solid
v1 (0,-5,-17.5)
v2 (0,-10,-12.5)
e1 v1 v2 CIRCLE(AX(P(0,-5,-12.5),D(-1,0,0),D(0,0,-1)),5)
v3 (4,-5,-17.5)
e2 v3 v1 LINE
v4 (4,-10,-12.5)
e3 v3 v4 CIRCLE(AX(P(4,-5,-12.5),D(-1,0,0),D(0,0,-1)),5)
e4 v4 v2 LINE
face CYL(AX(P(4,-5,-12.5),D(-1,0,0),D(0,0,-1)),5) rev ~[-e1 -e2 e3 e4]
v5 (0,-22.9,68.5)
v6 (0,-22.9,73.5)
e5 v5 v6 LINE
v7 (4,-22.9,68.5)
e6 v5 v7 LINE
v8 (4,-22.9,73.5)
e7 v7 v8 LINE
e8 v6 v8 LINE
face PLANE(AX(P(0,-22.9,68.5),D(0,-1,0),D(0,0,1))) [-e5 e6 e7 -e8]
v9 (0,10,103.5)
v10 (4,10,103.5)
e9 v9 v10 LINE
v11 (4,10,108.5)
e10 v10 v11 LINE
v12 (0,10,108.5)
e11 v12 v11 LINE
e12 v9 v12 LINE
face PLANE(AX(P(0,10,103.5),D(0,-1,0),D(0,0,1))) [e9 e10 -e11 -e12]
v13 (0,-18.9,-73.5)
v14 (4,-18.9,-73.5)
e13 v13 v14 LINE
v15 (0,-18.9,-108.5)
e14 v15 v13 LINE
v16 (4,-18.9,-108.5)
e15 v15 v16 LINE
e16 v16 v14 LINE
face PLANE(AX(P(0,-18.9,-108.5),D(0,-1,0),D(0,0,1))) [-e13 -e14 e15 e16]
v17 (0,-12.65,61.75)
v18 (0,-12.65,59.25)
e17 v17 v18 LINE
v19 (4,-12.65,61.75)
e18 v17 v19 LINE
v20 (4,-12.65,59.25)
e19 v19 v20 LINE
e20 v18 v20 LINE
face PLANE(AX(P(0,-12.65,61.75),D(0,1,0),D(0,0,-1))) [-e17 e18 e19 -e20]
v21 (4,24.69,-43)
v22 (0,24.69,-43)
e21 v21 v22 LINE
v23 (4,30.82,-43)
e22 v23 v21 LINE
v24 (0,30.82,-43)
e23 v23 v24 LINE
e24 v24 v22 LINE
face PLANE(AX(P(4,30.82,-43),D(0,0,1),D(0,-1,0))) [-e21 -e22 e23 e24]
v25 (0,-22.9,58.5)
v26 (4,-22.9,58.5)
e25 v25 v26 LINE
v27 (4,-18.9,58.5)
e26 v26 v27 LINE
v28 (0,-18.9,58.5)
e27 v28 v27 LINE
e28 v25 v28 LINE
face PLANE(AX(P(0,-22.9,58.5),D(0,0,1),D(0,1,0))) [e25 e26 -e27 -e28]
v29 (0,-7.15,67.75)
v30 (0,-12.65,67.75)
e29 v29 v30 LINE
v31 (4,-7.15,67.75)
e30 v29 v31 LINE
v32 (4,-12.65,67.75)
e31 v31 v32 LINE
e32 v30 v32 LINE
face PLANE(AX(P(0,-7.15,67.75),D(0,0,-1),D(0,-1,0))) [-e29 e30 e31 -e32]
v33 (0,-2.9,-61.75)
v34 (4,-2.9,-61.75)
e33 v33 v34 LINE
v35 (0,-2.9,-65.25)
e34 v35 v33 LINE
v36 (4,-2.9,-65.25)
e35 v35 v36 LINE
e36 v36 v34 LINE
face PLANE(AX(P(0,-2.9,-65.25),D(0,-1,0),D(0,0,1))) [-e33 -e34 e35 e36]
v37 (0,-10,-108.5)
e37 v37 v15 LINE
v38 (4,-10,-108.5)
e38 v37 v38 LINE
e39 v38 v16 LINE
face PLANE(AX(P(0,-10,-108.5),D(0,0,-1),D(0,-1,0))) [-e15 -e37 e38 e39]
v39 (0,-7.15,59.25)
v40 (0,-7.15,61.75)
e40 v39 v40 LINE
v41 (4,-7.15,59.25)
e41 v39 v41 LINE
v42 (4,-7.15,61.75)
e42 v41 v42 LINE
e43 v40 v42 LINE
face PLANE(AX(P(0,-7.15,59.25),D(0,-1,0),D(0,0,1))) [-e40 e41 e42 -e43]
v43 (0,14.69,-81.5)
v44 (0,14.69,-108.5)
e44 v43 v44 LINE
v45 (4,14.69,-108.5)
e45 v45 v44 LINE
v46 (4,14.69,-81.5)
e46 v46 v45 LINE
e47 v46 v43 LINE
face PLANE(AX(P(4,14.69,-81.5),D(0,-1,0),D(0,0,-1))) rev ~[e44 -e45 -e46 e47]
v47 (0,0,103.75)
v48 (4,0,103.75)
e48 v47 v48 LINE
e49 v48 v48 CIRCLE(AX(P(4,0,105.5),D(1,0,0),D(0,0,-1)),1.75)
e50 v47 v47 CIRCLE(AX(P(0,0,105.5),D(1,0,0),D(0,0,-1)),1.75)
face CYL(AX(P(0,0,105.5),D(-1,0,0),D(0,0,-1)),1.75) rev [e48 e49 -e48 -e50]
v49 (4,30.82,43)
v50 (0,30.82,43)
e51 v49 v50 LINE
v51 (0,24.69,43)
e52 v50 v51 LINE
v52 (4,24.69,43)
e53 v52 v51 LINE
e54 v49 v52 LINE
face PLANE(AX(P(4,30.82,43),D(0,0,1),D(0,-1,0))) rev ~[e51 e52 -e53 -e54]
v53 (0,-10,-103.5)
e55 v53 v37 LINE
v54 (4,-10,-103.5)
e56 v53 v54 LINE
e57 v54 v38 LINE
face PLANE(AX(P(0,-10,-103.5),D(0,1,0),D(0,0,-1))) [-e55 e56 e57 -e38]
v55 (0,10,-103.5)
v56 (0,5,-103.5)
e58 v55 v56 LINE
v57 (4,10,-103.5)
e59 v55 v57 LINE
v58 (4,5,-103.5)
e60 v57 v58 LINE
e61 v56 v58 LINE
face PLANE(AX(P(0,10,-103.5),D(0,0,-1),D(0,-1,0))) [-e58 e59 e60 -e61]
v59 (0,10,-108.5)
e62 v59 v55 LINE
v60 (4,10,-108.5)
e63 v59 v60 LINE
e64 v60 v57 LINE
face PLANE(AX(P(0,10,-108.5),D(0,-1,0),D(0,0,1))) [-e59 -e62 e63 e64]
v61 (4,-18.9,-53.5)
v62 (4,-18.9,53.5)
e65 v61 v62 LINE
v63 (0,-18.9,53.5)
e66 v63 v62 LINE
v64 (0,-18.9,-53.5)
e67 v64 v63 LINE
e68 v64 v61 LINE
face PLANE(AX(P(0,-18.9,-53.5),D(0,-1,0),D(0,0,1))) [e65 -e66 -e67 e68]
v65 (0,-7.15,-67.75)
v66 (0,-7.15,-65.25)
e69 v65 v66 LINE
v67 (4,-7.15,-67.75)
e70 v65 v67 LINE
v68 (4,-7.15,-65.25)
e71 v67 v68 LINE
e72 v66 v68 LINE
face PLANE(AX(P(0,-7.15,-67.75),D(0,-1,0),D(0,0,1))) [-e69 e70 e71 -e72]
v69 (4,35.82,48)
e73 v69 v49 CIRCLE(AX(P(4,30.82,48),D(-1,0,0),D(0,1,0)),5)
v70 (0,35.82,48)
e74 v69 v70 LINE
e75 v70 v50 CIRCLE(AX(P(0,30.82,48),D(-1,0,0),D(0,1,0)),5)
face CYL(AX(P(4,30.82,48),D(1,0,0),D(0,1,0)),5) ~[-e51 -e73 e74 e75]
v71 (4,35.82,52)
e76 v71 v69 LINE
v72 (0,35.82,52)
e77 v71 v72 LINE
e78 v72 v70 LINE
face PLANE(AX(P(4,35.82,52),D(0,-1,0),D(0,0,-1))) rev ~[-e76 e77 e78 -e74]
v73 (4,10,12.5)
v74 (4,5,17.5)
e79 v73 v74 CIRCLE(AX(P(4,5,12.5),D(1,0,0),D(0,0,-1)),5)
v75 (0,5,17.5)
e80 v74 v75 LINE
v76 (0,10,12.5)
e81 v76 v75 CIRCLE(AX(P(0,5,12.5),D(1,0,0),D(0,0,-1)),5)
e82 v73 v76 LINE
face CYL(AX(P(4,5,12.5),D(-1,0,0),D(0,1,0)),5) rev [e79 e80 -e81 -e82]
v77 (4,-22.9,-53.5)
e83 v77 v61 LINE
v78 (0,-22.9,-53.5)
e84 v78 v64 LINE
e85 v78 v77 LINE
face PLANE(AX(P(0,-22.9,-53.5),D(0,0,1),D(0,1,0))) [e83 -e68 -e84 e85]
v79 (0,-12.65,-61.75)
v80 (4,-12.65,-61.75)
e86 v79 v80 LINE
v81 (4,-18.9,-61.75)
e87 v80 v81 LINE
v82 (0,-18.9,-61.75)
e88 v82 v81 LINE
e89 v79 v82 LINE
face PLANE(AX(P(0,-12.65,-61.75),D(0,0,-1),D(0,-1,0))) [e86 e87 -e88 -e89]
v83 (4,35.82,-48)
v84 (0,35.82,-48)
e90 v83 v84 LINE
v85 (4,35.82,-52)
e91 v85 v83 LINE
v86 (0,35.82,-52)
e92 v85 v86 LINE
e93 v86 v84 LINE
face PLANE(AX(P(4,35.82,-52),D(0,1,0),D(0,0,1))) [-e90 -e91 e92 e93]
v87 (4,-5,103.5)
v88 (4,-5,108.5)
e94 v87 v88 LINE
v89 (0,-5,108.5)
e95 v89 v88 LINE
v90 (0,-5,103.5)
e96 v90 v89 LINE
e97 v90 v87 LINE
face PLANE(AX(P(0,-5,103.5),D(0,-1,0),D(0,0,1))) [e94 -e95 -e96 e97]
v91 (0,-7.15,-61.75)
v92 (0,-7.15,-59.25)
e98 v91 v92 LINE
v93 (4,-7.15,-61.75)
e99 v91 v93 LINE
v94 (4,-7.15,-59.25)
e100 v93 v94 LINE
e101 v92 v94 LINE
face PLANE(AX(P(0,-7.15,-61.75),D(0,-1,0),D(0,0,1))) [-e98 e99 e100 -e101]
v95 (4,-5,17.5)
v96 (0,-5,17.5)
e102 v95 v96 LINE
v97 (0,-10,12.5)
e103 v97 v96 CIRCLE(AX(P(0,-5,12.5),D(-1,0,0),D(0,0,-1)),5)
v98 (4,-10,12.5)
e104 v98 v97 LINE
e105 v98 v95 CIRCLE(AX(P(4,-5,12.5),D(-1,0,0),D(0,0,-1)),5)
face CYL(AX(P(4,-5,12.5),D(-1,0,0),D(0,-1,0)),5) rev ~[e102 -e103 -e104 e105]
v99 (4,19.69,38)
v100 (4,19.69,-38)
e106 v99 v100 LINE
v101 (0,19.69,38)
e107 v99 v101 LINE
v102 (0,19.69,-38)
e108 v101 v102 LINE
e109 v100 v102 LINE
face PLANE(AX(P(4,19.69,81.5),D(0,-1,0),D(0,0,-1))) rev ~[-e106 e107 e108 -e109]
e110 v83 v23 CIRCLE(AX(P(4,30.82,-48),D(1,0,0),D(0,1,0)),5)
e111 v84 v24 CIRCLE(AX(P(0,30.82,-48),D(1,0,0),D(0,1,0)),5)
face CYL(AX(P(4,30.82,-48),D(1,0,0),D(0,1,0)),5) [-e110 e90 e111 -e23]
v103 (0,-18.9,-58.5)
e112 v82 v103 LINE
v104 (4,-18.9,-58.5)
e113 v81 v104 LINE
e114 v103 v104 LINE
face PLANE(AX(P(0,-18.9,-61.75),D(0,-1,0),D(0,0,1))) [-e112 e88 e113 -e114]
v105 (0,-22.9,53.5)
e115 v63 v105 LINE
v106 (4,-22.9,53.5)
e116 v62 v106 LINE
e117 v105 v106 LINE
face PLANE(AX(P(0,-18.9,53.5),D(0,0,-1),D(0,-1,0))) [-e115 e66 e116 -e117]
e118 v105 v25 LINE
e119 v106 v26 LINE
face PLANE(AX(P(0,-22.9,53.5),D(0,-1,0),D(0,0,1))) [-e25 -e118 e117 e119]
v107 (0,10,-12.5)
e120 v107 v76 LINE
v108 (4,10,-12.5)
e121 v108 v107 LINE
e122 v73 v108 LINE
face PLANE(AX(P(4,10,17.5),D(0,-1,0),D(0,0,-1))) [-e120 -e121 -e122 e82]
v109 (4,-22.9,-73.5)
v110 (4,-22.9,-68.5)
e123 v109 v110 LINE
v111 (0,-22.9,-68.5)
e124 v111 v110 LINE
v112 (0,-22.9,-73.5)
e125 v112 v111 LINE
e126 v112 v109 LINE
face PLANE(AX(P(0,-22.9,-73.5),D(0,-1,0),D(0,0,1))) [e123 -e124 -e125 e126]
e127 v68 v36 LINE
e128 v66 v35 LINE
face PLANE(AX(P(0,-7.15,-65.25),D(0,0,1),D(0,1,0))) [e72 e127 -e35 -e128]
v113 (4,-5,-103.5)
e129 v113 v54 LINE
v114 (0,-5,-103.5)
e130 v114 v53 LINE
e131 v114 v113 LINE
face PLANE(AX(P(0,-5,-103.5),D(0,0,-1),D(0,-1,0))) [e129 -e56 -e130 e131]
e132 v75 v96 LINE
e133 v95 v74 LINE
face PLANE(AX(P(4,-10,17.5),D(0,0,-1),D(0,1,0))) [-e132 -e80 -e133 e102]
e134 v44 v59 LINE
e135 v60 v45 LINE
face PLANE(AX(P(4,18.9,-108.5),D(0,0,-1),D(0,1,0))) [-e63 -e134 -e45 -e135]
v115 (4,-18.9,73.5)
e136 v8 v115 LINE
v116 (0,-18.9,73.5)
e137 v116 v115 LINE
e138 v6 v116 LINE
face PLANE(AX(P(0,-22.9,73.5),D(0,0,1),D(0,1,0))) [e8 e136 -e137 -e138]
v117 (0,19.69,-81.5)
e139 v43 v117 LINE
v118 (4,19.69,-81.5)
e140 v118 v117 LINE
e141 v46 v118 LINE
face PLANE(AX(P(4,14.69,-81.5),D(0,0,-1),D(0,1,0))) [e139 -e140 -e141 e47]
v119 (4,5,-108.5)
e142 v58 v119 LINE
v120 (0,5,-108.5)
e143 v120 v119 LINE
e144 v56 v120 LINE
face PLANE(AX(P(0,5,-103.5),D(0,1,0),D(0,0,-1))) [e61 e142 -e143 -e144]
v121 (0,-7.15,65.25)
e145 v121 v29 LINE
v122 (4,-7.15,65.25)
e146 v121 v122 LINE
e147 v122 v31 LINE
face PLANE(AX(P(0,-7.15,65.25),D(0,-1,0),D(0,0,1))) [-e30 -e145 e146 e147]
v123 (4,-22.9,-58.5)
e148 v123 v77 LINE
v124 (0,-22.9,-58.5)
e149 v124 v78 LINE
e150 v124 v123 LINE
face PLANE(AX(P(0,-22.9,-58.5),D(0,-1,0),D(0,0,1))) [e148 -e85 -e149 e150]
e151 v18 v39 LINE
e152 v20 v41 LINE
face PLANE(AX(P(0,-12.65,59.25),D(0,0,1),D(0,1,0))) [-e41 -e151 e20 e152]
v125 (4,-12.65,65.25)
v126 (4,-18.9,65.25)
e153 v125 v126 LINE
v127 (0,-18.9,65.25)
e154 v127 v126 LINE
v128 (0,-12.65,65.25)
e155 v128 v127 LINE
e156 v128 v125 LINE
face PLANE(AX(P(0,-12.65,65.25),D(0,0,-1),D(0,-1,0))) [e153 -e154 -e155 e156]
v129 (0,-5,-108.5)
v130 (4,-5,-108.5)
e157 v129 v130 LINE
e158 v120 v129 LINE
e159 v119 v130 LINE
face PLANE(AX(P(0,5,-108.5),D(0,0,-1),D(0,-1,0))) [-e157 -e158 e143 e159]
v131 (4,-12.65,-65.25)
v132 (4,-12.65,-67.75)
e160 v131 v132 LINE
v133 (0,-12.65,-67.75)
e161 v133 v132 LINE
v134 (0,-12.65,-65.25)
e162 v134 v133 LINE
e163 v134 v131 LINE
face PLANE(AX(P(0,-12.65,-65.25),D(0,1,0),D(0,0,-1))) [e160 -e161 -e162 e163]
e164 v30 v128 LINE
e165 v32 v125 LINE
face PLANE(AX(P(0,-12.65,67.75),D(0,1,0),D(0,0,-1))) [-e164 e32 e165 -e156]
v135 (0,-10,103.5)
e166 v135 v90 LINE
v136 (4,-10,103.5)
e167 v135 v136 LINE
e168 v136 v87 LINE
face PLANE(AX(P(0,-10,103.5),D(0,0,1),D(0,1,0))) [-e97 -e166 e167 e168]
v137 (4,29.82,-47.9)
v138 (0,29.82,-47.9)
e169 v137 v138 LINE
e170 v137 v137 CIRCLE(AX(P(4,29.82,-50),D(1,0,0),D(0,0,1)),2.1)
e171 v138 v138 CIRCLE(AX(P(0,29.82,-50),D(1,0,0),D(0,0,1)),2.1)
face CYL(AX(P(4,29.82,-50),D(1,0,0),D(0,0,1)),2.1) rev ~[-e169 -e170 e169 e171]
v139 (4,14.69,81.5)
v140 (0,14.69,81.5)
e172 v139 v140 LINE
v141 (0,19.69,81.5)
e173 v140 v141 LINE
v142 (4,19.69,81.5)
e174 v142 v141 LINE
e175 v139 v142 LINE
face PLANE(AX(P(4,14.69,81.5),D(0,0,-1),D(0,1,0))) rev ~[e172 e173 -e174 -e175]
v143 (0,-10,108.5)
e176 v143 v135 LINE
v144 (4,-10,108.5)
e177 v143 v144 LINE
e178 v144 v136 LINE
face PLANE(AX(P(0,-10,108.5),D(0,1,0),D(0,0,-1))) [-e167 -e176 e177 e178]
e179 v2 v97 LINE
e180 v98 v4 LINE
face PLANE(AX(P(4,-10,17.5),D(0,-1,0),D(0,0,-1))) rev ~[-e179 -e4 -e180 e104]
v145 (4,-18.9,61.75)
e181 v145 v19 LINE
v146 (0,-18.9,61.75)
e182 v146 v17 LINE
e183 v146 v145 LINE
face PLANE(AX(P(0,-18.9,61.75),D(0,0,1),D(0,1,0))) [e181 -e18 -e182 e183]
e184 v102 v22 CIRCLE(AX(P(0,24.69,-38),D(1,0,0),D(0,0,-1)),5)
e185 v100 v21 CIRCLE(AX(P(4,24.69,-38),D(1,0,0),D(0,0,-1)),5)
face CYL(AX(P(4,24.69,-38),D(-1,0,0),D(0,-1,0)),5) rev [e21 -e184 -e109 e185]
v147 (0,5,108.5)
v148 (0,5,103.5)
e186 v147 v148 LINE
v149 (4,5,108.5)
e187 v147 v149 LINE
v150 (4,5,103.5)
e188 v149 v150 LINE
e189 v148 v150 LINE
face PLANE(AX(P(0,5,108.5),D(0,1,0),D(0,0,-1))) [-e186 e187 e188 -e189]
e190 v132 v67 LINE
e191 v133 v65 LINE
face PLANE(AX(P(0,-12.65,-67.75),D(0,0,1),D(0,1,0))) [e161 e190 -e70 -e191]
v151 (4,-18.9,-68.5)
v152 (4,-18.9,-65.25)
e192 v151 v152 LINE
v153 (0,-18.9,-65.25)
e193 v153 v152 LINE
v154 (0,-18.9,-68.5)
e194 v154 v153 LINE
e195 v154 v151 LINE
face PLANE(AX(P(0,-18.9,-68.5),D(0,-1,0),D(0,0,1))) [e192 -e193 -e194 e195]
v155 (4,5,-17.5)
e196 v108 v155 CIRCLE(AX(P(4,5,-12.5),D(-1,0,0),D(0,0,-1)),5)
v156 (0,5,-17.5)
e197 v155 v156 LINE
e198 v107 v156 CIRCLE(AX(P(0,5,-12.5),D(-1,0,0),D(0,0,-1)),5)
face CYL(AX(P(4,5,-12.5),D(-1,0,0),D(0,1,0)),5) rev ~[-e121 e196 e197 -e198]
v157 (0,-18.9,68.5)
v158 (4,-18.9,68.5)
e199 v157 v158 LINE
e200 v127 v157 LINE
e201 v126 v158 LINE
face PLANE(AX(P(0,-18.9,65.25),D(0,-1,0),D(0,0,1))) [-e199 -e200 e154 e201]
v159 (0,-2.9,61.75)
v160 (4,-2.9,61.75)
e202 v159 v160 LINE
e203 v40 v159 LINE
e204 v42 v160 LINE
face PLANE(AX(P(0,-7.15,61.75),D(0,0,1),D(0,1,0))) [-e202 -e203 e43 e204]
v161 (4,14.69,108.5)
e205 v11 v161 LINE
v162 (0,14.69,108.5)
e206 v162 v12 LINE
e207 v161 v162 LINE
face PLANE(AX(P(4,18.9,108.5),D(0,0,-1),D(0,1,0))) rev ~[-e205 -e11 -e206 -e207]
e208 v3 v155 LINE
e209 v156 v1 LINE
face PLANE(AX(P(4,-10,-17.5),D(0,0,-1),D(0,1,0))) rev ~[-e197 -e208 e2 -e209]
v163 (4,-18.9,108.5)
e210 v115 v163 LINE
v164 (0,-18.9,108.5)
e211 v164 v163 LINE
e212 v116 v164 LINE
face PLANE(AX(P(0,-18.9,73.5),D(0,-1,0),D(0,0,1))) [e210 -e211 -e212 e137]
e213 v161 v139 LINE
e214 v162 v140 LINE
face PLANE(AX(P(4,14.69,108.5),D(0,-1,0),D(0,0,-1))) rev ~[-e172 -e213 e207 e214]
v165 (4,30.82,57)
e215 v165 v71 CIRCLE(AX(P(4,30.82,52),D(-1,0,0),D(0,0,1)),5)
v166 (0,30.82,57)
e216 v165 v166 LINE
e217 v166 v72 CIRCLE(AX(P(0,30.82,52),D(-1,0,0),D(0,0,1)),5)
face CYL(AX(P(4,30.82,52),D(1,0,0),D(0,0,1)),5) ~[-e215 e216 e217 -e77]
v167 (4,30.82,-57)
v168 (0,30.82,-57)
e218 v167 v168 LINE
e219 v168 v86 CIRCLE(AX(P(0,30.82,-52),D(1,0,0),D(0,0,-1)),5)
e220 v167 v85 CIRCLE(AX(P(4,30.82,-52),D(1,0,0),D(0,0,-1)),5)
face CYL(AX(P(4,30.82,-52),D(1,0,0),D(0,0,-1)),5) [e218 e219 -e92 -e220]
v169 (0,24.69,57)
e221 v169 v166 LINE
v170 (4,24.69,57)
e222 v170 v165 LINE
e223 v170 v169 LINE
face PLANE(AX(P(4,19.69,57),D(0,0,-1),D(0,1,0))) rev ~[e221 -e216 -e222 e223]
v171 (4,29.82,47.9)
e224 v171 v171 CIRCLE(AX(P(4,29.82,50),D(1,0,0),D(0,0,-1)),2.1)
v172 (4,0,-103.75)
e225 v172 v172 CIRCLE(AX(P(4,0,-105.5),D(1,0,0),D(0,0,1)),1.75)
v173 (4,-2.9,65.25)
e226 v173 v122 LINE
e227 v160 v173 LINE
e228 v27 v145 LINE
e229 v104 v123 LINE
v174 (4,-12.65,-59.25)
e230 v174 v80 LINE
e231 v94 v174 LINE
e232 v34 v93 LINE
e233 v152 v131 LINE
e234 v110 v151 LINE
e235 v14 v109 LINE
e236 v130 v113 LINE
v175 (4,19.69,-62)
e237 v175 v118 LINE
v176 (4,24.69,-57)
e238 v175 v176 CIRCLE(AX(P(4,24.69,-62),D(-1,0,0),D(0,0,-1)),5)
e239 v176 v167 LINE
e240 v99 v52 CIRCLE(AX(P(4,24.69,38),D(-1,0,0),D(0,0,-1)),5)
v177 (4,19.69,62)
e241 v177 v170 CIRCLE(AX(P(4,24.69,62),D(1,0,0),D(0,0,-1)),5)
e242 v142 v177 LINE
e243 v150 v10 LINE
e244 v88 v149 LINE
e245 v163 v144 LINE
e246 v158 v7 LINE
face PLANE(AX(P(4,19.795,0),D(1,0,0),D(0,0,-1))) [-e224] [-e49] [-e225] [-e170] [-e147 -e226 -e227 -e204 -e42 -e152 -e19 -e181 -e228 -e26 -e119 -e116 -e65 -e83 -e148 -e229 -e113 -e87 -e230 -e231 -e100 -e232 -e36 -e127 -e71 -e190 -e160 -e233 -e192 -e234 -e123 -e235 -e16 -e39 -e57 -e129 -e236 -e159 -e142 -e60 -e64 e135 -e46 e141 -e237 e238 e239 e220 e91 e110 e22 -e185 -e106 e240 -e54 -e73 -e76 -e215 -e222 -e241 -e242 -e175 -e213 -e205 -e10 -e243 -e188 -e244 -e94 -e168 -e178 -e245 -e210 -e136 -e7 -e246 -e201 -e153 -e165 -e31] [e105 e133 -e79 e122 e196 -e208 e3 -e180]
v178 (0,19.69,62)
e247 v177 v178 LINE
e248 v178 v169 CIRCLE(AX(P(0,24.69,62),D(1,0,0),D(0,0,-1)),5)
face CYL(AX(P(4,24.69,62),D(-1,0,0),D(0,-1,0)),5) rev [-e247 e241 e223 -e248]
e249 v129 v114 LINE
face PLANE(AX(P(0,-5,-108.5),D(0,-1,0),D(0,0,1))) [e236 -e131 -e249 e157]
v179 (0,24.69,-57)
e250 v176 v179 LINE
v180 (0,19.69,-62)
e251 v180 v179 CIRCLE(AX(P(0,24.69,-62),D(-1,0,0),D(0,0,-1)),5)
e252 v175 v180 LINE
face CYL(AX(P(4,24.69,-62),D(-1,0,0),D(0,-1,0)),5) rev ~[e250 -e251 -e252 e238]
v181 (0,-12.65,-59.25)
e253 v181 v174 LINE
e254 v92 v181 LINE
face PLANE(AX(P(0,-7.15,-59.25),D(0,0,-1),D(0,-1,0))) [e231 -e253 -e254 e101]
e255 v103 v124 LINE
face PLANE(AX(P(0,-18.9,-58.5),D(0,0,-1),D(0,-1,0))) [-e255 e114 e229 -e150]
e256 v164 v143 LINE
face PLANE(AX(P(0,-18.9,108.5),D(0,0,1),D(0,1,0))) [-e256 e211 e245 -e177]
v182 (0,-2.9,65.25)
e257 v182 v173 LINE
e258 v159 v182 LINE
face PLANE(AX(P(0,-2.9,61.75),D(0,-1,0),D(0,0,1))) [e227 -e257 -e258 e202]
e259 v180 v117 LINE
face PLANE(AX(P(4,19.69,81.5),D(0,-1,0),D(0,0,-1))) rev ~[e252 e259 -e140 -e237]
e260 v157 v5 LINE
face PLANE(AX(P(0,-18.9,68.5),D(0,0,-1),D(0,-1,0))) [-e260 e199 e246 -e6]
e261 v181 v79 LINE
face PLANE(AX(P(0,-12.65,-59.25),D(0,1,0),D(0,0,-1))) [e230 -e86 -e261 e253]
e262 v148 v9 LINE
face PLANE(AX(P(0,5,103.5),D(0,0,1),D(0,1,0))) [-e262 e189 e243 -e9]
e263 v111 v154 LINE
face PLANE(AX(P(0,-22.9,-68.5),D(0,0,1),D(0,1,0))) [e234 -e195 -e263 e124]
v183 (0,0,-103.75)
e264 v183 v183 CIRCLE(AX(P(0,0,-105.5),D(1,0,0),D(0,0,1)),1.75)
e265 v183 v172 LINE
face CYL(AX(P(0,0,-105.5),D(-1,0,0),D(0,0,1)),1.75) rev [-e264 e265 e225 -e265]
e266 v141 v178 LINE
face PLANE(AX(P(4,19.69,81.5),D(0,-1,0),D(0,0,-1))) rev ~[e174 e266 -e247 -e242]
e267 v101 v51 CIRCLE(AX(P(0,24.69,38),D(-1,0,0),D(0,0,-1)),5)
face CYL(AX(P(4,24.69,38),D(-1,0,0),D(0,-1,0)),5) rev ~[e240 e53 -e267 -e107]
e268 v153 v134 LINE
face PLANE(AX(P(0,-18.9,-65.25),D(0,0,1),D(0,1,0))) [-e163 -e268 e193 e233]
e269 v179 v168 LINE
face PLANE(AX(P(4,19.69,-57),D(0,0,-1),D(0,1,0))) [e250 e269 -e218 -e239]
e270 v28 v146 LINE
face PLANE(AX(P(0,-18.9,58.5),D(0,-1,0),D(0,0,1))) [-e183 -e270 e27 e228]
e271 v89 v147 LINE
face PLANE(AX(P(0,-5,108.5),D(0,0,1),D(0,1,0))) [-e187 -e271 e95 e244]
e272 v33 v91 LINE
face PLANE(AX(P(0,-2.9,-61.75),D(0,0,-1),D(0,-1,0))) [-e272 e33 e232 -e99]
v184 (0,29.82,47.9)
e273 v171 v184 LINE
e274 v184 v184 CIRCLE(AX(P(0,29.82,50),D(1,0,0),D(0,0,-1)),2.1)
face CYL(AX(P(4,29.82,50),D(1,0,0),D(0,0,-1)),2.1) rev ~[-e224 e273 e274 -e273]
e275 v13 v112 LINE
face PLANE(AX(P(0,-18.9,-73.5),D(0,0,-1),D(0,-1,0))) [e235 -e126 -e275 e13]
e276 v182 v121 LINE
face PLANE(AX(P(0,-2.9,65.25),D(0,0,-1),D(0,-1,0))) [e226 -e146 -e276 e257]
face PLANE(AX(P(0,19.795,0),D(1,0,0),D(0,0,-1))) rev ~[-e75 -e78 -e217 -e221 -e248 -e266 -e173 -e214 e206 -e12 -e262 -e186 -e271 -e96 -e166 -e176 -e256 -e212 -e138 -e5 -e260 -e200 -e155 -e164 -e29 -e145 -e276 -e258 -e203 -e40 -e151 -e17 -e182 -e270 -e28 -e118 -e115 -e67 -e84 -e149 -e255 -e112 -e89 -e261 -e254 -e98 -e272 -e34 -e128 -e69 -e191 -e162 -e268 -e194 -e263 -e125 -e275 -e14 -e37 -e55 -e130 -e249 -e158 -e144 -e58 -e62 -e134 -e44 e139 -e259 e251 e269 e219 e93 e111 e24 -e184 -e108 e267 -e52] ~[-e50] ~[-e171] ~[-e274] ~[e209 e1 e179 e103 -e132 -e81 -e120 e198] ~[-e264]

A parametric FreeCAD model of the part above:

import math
import FreeCAD as App
import Part
import Sketcher
from FreeCAD import Vector


def edges_at(feature, points):
    """Names of the edges that pass closest to the given points."""
    edges = feature.Shape.Edges
    near = lambda p: min(range(len(edges)), key=lambda i: edges[i].distToShape(Part.Vertex(*p))[0])
    return sorted({f"Edge{near(p) + 1}" for p in points})

doc = App.newDocument("Part")
body = doc.addObject("PartDesign::Body", "Body")

# Sketch on YZ plane
sketch1 = body.newObject("Sketcher::SketchObject", "Sketch")
sketch1.AttachmentSupport = (doc.getObject("YZ_Plane"), [""])
sketch1.MapMode = "FlatFace"
sketch1.addGeometry([
    Part.LineSegment(Vector(18.9, -108.5, 0), Vector(18.9, 108.5, 0)),  # 0
    Part.LineSegment(Vector(18.9, 108.5, 0), Vector(10, 108.5, 0)),  # 1
    Part.LineSegment(Vector(10, 108.5, 0), Vector(10, 103.5, 0)),  # 2
    Part.LineSegment(Vector(10, 103.5, 0), Vector(5, 103.5, 0)),  # 3
    Part.LineSegment(Vector(5, 103.5, 0), Vector(5, 108.5, 0)),  # 4
    Part.LineSegment(Vector(5, 108.5, 0), Vector(-5, 108.5, 0)),  # 5
    Part.LineSegment(Vector(-5, 108.5, 0), Vector(-5, 103.5, 0)),  # 6
    Part.LineSegment(Vector(-5, 103.5, 0), Vector(-10, 103.5, 0)),  # 7
    Part.LineSegment(Vector(-10, 103.5, 0), Vector(-10, 108.5, 0)),  # 8
    Part.LineSegment(Vector(-10, 108.5, 0), Vector(-18.9, 108.5, 0)),  # 9
    Part.LineSegment(Vector(-18.9, 108.5, 0), Vector(-18.9, 73.5, 0)),  # 10
    Part.LineSegment(Vector(-18.9, 73.5, 0), Vector(-22.9, 73.5, 0)),  # 11
    Part.LineSegment(Vector(-22.9, 73.5, 0), Vector(-22.9, 68.5, 0)),  # 12
    Part.LineSegment(Vector(-22.9, 68.5, 0), Vector(-18.9, 68.5, 0)),  # 13
    Part.LineSegment(Vector(-18.9, 68.5, 0), Vector(-18.9, 65.2, 0)),  # 14
    Part.LineSegment(Vector(-18.9, 65.2, 0), Vector(-12.7, 65.2, 0)),  # 15
    Part.LineSegment(Vector(-12.7, 65.2, 0), Vector(-12.7, 67.8, 0)),  # 16
    Part.LineSegment(Vector(-12.7, 67.8, 0), Vector(-7.2, 67.8, 0)),  # 17
    Part.LineSegment(Vector(-7.2, 67.8, 0), Vector(-7.2, 65.2, 0)),  # 18
    Part.LineSegment(Vector(-7.2, 65.2, 0), Vector(-2.9, 65.2, 0)),  # 19
    Part.LineSegment(Vector(-2.9, 65.2, 0), Vector(-2.9, 61.8, 0)),  # 20
    Part.LineSegment(Vector(-2.9, 61.8, 0), Vector(-7.2, 61.8, 0)),  # 21
    Part.LineSegment(Vector(-7.2, 61.8, 0), Vector(-7.2, 59.2, 0)),  # 22
    Part.LineSegment(Vector(-7.2, 59.2, 0), Vector(-12.7, 59.2, 0)),  # 23
    Part.LineSegment(Vector(-12.7, 59.2, 0), Vector(-12.7, 61.8, 0)),  # 24
    Part.LineSegment(Vector(-12.7, 61.8, 0), Vector(-18.9, 61.8, 0)),  # 25
    Part.LineSegment(Vector(-18.9, 61.8, 0), Vector(-18.9, 58.5, 0)),  # 26
    Part.LineSegment(Vector(-18.9, 58.5, 0), Vector(-22.9, 58.5, 0)),  # 27
    Part.LineSegment(Vector(-22.9, 58.5, 0), Vector(-22.9, 53.5, 0)),  # 28
    Part.LineSegment(Vector(-22.9, 53.5, 0), Vector(-18.9, 53.5, 0)),  # 29
    Part.LineSegment(Vector(-18.9, 53.5, 0), Vector(-18.9, -53.5, 0)),  # 30
    Part.LineSegment(Vector(-18.9, -53.5, 0), Vector(-22.9, -53.5, 0)),  # 31
    Part.LineSegment(Vector(-22.9, -53.5, 0), Vector(-22.9, -58.5, 0)),  # 32
    Part.LineSegment(Vector(-22.9, -58.5, 0), Vector(-18.9, -58.5, 0)),  # 33
    Part.LineSegment(Vector(-18.9, -58.5, 0), Vector(-18.9, -61.8, 0)),  # 34
    Part.LineSegment(Vector(-18.9, -61.8, 0), Vector(-12.7, -61.8, 0)),  # 35
    Part.LineSegment(Vector(-12.7, -61.8, 0), Vector(-12.7, -59.2, 0)),  # 36
    Part.LineSegment(Vector(-12.7, -59.2, 0), Vector(-7.2, -59.2, 0)),  # 37
    Part.LineSegment(Vector(-7.2, -59.2, 0), Vector(-7.2, -61.8, 0)),  # 38
    Part.LineSegment(Vector(-7.2, -61.8, 0), Vector(-2.9, -61.8, 0)),  # 39
    Part.LineSegment(Vector(-2.9, -61.8, 0), Vector(-2.9, -65.2, 0)),  # 40
    Part.LineSegment(Vector(-2.9, -65.2, 0), Vector(-7.2, -65.2, 0)),  # 41
    Part.LineSegment(Vector(-7.2, -65.2, 0), Vector(-7.2, -67.8, 0)),  # 42
    Part.LineSegment(Vector(-7.2, -67.8, 0), Vector(-12.7, -67.8, 0)),  # 43
    Part.LineSegment(Vector(-12.7, -67.8, 0), Vector(-12.7, -65.2, 0)),  # 44
    Part.LineSegment(Vector(-12.7, -65.2, 0), Vector(-18.9, -65.2, 0)),  # 45
    Part.LineSegment(Vector(-18.9, -65.2, 0), Vector(-18.9, -68.5, 0)),  # 46
    Part.LineSegment(Vector(-18.9, -68.5, 0), Vector(-22.9, -68.5, 0)),  # 47
    Part.LineSegment(Vector(-22.9, -68.5, 0), Vector(-22.9, -73.5, 0)),  # 48
    Part.LineSegment(Vector(-22.9, -73.5, 0), Vector(-18.9, -73.5, 0)),  # 49
    Part.LineSegment(Vector(-18.9, -73.5, 0), Vector(-18.9, -108.5, 0)),  # 50
    Part.LineSegment(Vector(-18.9, -108.5, 0), Vector(-10, -108.5, 0)),  # 51
    Part.LineSegment(Vector(-10, -108.5, 0), Vector(-10, -103.5, 0)),  # 52
    Part.LineSegment(Vector(-10, -103.5, 0), Vector(-5, -103.5, 0)),  # 53
    Part.LineSegment(Vector(-5, -103.5, 0), Vector(-5, -108.5, 0)),  # 54
    Part.LineSegment(Vector(-5, -108.5, 0), Vector(5, -108.5, 0)),  # 55
    Part.LineSegment(Vector(5, -108.5, 0), Vector(5, -103.5, 0)),  # 56
    Part.LineSegment(Vector(5, -103.5, 0), Vector(10, -103.5, 0)),  # 57
    Part.LineSegment(Vector(10, -103.5, 0), Vector(10, -108.5, 0)),  # 58
    Part.LineSegment(Vector(10, -108.5, 0), Vector(18.9, -108.5, 0)),  # 59
    Part.Circle(Vector(0, -105.5, 0), Vector(0, 0, 1), 1.8),  # 60
    Part.Circle(Vector(0, 105.5, 0), Vector(0, 0, 1), 1.8),  # 61
], False)
sketch1.addConstraint([
    Sketcher.Constraint("Coincident", 0, 2, 1, 1),
    Sketcher.Constraint("Coincident", 1, 2, 2, 1),
    Sketcher.Constraint("Coincident", 2, 2, 3, 1),
    Sketcher.Constraint("Coincident", 3, 2, 4, 1),
    Sketcher.Constraint("Coincident", 4, 2, 5, 1),
    Sketcher.Constraint("Coincident", 5, 2, 6, 1),
    Sketcher.Constraint("Coincident", 6, 2, 7, 1),
    Sketcher.Constraint("Coincident", 7, 2, 8, 1),
    Sketcher.Constraint("Coincident", 8, 2, 9, 1),
    Sketcher.Constraint("Coincident", 9, 2, 10, 1),
    Sketcher.Constraint("Coincident", 10, 2, 11, 1),
    Sketcher.Constraint("Coincident", 11, 2, 12, 1),
    Sketcher.Constraint("Coincident", 12, 2, 13, 1),
    Sketcher.Constraint("Coincident", 13, 2, 14, 1),
    Sketcher.Constraint("Coincident", 14, 2, 15, 1),
    Sketcher.Constraint("Coincident", 15, 2, 16, 1),
    Sketcher.Constraint("Coincident", 16, 2, 17, 1),
    Sketcher.Constraint("Coincident", 17, 2, 18, 1),
    Sketcher.Constraint("Coincident", 18, 2, 19, 1),
    Sketcher.Constraint("Coincident", 19, 2, 20, 1),
    Sketcher.Constraint("Coincident", 20, 2, 21, 1),
    Sketcher.Constraint("Coincident", 21, 2, 22, 1),
    Sketcher.Constraint("Coincident", 22, 2, 23, 1),
    Sketcher.Constraint("Coincident", 23, 2, 24, 1),
    Sketcher.Constraint("Coincident", 24, 2, 25, 1),
    Sketcher.Constraint("Coincident", 25, 2, 26, 1),
    Sketcher.Constraint("Coincident", 26, 2, 27, 1),
    Sketcher.Constraint("Coincident", 27, 2, 28, 1),
    Sketcher.Constraint("Coincident", 28, 2, 29, 1),
    Sketcher.Constraint("Coincident", 29, 2, 30, 1),
    Sketcher.Constraint("Coincident", 30, 2, 31, 1),
    Sketcher.Constraint("Coincident", 31, 2, 32, 1),
    Sketcher.Constraint("Coincident", 32, 2, 33, 1),
    Sketcher.Constraint("Coincident", 33, 2, 34, 1),
    Sketcher.Constraint("Coincident", 34, 2, 35, 1),
    Sketcher.Constraint("Coincident", 35, 2, 36, 1),
    Sketcher.Constraint("Coincident", 36, 2, 37, 1),
    Sketcher.Constraint("Coincident", 37, 2, 38, 1),
    Sketcher.Constraint("Coincident", 38, 2, 39, 1),
    Sketcher.Constraint("Coincident", 39, 2, 40, 1),
    Sketcher.Constraint("Coincident", 40, 2, 41, 1),
    Sketcher.Constraint("Coincident", 41, 2, 42, 1),
    Sketcher.Constraint("Coincident", 42, 2, 43, 1),
    Sketcher.Constraint("Coincident", 43, 2, 44, 1),
    Sketcher.Constraint("Coincident", 44, 2, 45, 1),
    Sketcher.Constraint("Coincident", 45, 2, 46, 1),
    Sketcher.Constraint("Coincident", 46, 2, 47, 1),
    Sketcher.Constraint("Coincident", 47, 2, 48, 1),
    Sketcher.Constraint("Coincident", 48, 2, 49, 1),
    Sketcher.Constraint("Coincident", 49, 2, 50, 1),
    Sketcher.Constraint("Coincident", 50, 2, 51, 1),
    Sketcher.Constraint("Coincident", 51, 2, 52, 1),
    Sketcher.Constraint("Coincident", 52, 2, 53, 1),
    Sketcher.Constraint("Coincident", 53, 2, 54, 1),
    Sketcher.Constraint("Coincident", 54, 2, 55, 1),
    Sketcher.Constraint("Coincident", 55, 2, 56, 1),
    Sketcher.Constraint("Coincident", 56, 2, 57, 1),
    Sketcher.Constraint("Coincident", 57, 2, 58, 1),
    Sketcher.Constraint("Coincident", 58, 2, 59, 1),
    Sketcher.Constraint("Coincident", 59, 2, 0, 1),
    Sketcher.Constraint("Vertical", 0),
    Sketcher.Constraint("Horizontal", 1),
    Sketcher.Constraint("Vertical", 2),
    Sketcher.Constraint("Horizontal", 3),
    Sketcher.Constraint("Vertical", 4),
    Sketcher.Constraint("Horizontal", 5),
    Sketcher.Constraint("Vertical", 6),
    Sketcher.Constraint("Horizontal", 7),
    Sketcher.Constraint("Vertical", 8),
    Sketcher.Constraint("Horizontal", 9),
    Sketcher.Constraint("Vertical", 10),
    Sketcher.Constraint("Horizontal", 11),
    Sketcher.Constraint("Vertical", 12),
    Sketcher.Constraint("Horizontal", 13),
    Sketcher.Constraint("Vertical", 14),
    Sketcher.Constraint("Horizontal", 15),
    Sketcher.Constraint("Vertical", 16),
    Sketcher.Constraint("Horizontal", 17),
    Sketcher.Constraint("Vertical", 18),
    Sketcher.Constraint("Horizontal", 19),
    Sketcher.Constraint("Vertical", 20),
    Sketcher.Constraint("Horizontal", 21),
    Sketcher.Constraint("Vertical", 22),
    Sketcher.Constraint("Horizontal", 23),
    Sketcher.Constraint("Vertical", 24),
    Sketcher.Constraint("Horizontal", 25),
    Sketcher.Constraint("Vertical", 26),
    Sketcher.Constraint("Horizontal", 27),
    Sketcher.Constraint("Vertical", 28),
    Sketcher.Constraint("Horizontal", 29),
    Sketcher.Constraint("Vertical", 30),
    Sketcher.Constraint("Horizontal", 31),
    Sketcher.Constraint("Vertical", 32),
    Sketcher.Constraint("Horizontal", 33),
    Sketcher.Constraint("Vertical", 34),
    Sketcher.Constraint("Horizontal", 35),
    Sketcher.Constraint("Vertical", 36),
    Sketcher.Constraint("Horizontal", 37),
    Sketcher.Constraint("Vertical", 38),
    Sketcher.Constraint("Horizontal", 39),
    Sketcher.Constraint("Vertical", 40),
    Sketcher.Constraint("Horizontal", 41),
    Sketcher.Constraint("Vertical", 42),
    Sketcher.Constraint("Horizontal", 43),
    Sketcher.Constraint("Vertical", 44),
    Sketcher.Constraint("Horizontal", 45),
    Sketcher.Constraint("Vertical", 46),
    Sketcher.Constraint("Horizontal", 47),
    Sketcher.Constraint("Vertical", 48),
    Sketcher.Constraint("Horizontal", 49),
    Sketcher.Constraint("Vertical", 50),
    Sketcher.Constraint("Horizontal", 51),
    Sketcher.Constraint("Vertical", 52),
    Sketcher.Constraint("Horizontal", 53),
    Sketcher.Constraint("Vertical", 54),
    Sketcher.Constraint("Horizontal", 55),
    Sketcher.Constraint("Vertical", 56),
    Sketcher.Constraint("Horizontal", 57),
    Sketcher.Constraint("Vertical", 58),
    Sketcher.Constraint("Horizontal", 59),
    Sketcher.Constraint("Equal", 60, 61),
    Sketcher.Constraint("Symmetric", 60, 3, 61, 3, -1, 1),
    Sketcher.Constraint("Symmetric", 0, 2, 50, 2, -1, 1),
    Sketcher.Constraint("Symmetric", 2, 2, 52, 2, -1, 1),
    Sketcher.Constraint("Symmetric", 4, 2, 54, 2, -1, 1),
    Sketcher.Constraint("Symmetric", 6, 2, 56, 2, -1, 1),
    Sketcher.Constraint("Symmetric", 8, 2, 58, 2, -1, 1),
    Sketcher.Constraint("Symmetric", 3, 2, 6, 2, -2),
    Sketcher.Constraint("Symmetric", 1, 2, 8, 2, -2),
    Sketcher.Constraint("Symmetric", 28, 2, 31, 2, -1),
    Sketcher.Constraint("Symmetric", 26, 2, 33, 2, -1),
    Sketcher.Constraint("Symmetric", 24, 2, 35, 2, -1),
    Sketcher.Constraint("Symmetric", 22, 2, 37, 2, -1),
    Sketcher.Constraint("Symmetric", 20, 2, 39, 2, -1),
    Sketcher.Constraint("Symmetric", 18, 2, 41, 2, -1),
    Sketcher.Constraint("Symmetric", 16, 2, 43, 2, -1),
    Sketcher.Constraint("Symmetric", 14, 2, 45, 2, -1),
    Sketcher.Constraint("Symmetric", 12, 2, 47, 2, -1),
    Sketcher.Constraint("Symmetric", 10, 2, 49, 2, -1),
    Sketcher.Constraint("PointOnObject", 60, 3, -2),
    Sketcher.Constraint("Horizontal", 1, 2, 4, 2),
    Sketcher.Constraint("Horizontal", 15, 2, 18, 2),
    Sketcher.Constraint("Horizontal", 21, 2, 24, 2),
    Sketcher.Constraint("Vertical", 10, 2, 13, 2),
    Sketcher.Constraint("Vertical", 18, 2, 21, 2),
    Sketcher.Constraint("Vertical", 16, 2, 23, 2),
    Sketcher.Constraint("Vertical", 14, 2, 25, 2),
    Sketcher.Constraint("Vertical", 12, 2, 27, 2),
    Sketcher.Constraint("Vertical", 26, 2, 29, 2),
    Sketcher.Constraint("Equal", 57, 2),
    Sketcher.Constraint("Equal", 8, 12),
    Sketcher.Constraint("Equal", 18, 22),
    Sketcher.Constraint("Equal", 14, 26),
    Sketcher.Constraint("Equal", 12, 28),
    Sketcher.Constraint("Diameter", 60, 3.5),
    Sketcher.Constraint("DistanceX", 3, 2, 3, 1, 5.0),
    Sketcher.Constraint("DistanceX", 5, 2, 5, 1, 10.0),
    Sketcher.Constraint("DistanceX", 11, 2, 11, 1, 4.0),
    Sketcher.Constraint("DistanceY", 0, 1, 0, 2, 217.0),
    Sketcher.Constraint("DistanceY", 10, 2, 10, 1, 35.0),
    Sketcher.Constraint("DistanceY", 30, 2, 30, 1, 107.0),
    Sketcher.Constraint("DistanceX", 1, 2, 1, 1, 8.9),
    Sketcher.Constraint("DistanceX", 17, 1, 17, 2, 5.5),
    Sketcher.Constraint("DistanceY", 16, 1, 16, 2, 2.5),
    Sketcher.Constraint("DistanceY", 20, 2, 20, 1, 3.5),
    Sketcher.Constraint("DistanceX", 15, 1, 15, 2, 6.25),
    Sketcher.Constraint("DistanceX", 19, 1, 19, 2, 4.25),
    Sketcher.Constraint("DistanceY", 60, 3, -1, 1, 105.5),
])
pad1 = body.newObject("PartDesign::Pad", "Pad")
pad1.Profile = sketch1
pad1.Length = 4

# Sketch on YZ plane
sketch2 = body.newObject("Sketcher::SketchObject", "Sketch001")
sketch2.AttachmentSupport = (doc.getObject("YZ_Plane"), [""])
sketch2.MapMode = "FlatFace"
sketch2.AttachmentOffset = App.Placement(Vector(0, 0, 4), App.Rotation())
sketch2.addGeometry([
    Part.LineSegment(Vector(10, 18, 0), Vector(-10, 18, 0)),
    Part.LineSegment(Vector(-10, 18, 0), Vector(-10, -18, 0)),
    Part.LineSegment(Vector(-10, -18, 0), Vector(10, -18, 0)),
    Part.LineSegment(Vector(10, -18, 0), Vector(10, 18, 0)),
], False)
sketch2.addConstraint([
    Sketcher.Constraint("Coincident", 0, 2, 1, 1),
    Sketcher.Constraint("Coincident", 1, 2, 2, 1),
    Sketcher.Constraint("Coincident", 2, 2, 3, 1),
    Sketcher.Constraint("Coincident", 3, 2, 0, 1),
    Sketcher.Constraint("Horizontal", 0),
    Sketcher.Constraint("Vertical", 1),
    Sketcher.Constraint("Horizontal", 2),
    Sketcher.Constraint("Vertical", 3),
    Sketcher.Constraint("Symmetric", 0, 2, 2, 2, -1, 1),
    Sketcher.Constraint("DistanceX", 0, 2, 0, 1, 20.0),
    Sketcher.Constraint("DistanceY", 1, 2, 1, 1, 35.0),
])
pocket1 = body.newObject("PartDesign::Pocket", "Pocket")
pocket1.Profile = sketch2
pocket1.Type = "ThroughAll"

# Sketch on YZ plane
sketch3 = body.newObject("Sketcher::SketchObject", "Sketch002")
sketch3.AttachmentSupport = (doc.getObject("YZ_Plane"), [""])
sketch3.MapMode = "FlatFace"
sketch3.AttachmentOffset = App.Placement(Vector(0, 0, 4), App.Rotation())
sketch3.addGeometry([
    Part.LineSegment(Vector(20.7, 108.5, 0), Vector(18.9, 108.5, 0)),
    Part.LineSegment(Vector(18.9, 108.5, 0), Vector(18.9, -108.5, 0)),
    Part.LineSegment(Vector(18.9, -108.5, 0), Vector(20.7, -108.5, 0)),
    Part.LineSegment(Vector(20.7, -108.5, 0), Vector(20.7, 108.5, 0)),
], False)
sketch3.addConstraint([
    Sketcher.Constraint("Coincident", 0, 2, 1, 1),
    Sketcher.Constraint("Coincident", 1, 2, 2, 1),
    Sketcher.Constraint("Coincident", 2, 2, 3, 1),
    Sketcher.Constraint("Coincident", 3, 2, 0, 1),
    Sketcher.Constraint("Horizontal", 0),
    Sketcher.Constraint("Vertical", 1),
    Sketcher.Constraint("Horizontal", 2),
    Sketcher.Constraint("Vertical", 3),
    Sketcher.Constraint("DistanceY", 1, 2, 1, 1, 217.0),
    Sketcher.Constraint("DistanceX", 0, 2, 0, 1, 1.79),
    Sketcher.Constraint("DistanceX", -1, 1, 0, 2, 18.9),
    Sketcher.Constraint("DistanceY", -1, 1, 0, 2, 108.5),
])
pad2 = body.newObject("PartDesign::Pad", "Pad001")
pad2.Profile = sketch3
pad2.Length = 4
pad2.Reversed = True

# Sketch on YZ plane
sketch4 = body.newObject("Sketcher::SketchObject", "Sketch003")
sketch4.AttachmentSupport = (doc.getObject("YZ_Plane"), [""])
sketch4.MapMode = "FlatFace"
sketch4.AttachmentOffset = App.Placement(Vector(0, 0, 4), App.Rotation())
sketch4.addGeometry([
    Part.LineSegment(Vector(21, 108, 0), Vector(15, 108, 0)),  # 0
    Part.LineSegment(Vector(15, 108, 0), Vector(15, 82, 0)),  # 1
    Part.LineSegment(Vector(15, 82, 0), Vector(21, 82, 0)),  # 2
    Part.LineSegment(Vector(21, 82, 0), Vector(21, 108, 0)),  # 3
    Part.LineSegment(Vector(21, -82, 0), Vector(15, -82, 0)),  # 4
    Part.LineSegment(Vector(15, -82, 0), Vector(15, -108, 0)),  # 5
    Part.LineSegment(Vector(15, -108, 0), Vector(21, -108, 0)),  # 6
    Part.LineSegment(Vector(21, -108, 0), Vector(21, -82, 0)),  # 7
], False)
sketch4.addConstraint([
    Sketcher.Constraint("Coincident", 0, 2, 1, 1),
    Sketcher.Constraint("Coincident", 1, 2, 2, 1),
    Sketcher.Constraint("Coincident", 2, 2, 3, 1),
    Sketcher.Constraint("Coincident", 3, 2, 0, 1),
    Sketcher.Constraint("Coincident", 4, 2, 5, 1),
    Sketcher.Constraint("Coincident", 5, 2, 6, 1),
    Sketcher.Constraint("Coincident", 6, 2, 7, 1),
    Sketcher.Constraint("Coincident", 7, 2, 4, 1),
    Sketcher.Constraint("Horizontal", 0),
    Sketcher.Constraint("Vertical", 1),
    Sketcher.Constraint("Horizontal", 2),
    Sketcher.Constraint("Vertical", 3),
    Sketcher.Constraint("Horizontal", 4),
    Sketcher.Constraint("Vertical", 5),
    Sketcher.Constraint("Horizontal", 6),
    Sketcher.Constraint("Vertical", 7),
    Sketcher.Constraint("Symmetric", 1, 2, 4, 2, -1),
    Sketcher.Constraint("Symmetric", 3, 2, 6, 2, -1),
    Sketcher.Constraint("DistanceX", 0, 2, 0, 1, 6.0),
    Sketcher.Constraint("DistanceY", 1, 2, 1, 1, 27.0),
    Sketcher.Constraint("DistanceY", 4, 2, 1, 2, 163.0),
    Sketcher.Constraint("DistanceX", -1, 1, 0, 2, 14.69),
])
pocket2 = body.newObject("PartDesign::Pocket", "Pocket001")
pocket2.Profile = sketch4
pocket2.Type = "ThroughAll"

# Sketch on YZ plane
sketch5 = body.newObject("Sketcher::SketchObject", "Sketch004")
sketch5.AttachmentSupport = (doc.getObject("YZ_Plane"), [""])
sketch5.MapMode = "FlatFace"
sketch5.AttachmentOffset = App.Placement(Vector(0, 0, 4), App.Rotation())
sketch5.addGeometry([
    Part.LineSegment(Vector(20.7, 81.5, 0), Vector(19.7, 81.5, 0)),
    Part.LineSegment(Vector(19.7, 81.5, 0), Vector(19.7, -81.5, 0)),
    Part.LineSegment(Vector(19.7, -81.5, 0), Vector(20.7, -81.5, 0)),
    Part.LineSegment(Vector(20.7, -81.5, 0), Vector(20.7, 81.5, 0)),
], False)
sketch5.addConstraint([
    Sketcher.Constraint("Coincident", 0, 2, 1, 1),
    Sketcher.Constraint("Coincident", 1, 2, 2, 1),
    Sketcher.Constraint("Coincident", 2, 2, 3, 1),
    Sketcher.Constraint("Coincident", 3, 2, 0, 1),
    Sketcher.Constraint("Horizontal", 0),
    Sketcher.Constraint("Vertical", 1),
    Sketcher.Constraint("Horizontal", 2),
    Sketcher.Constraint("Vertical", 3),
    Sketcher.Constraint("DistanceX", 0, 2, 0, 1, 1.0),
    Sketcher.Constraint("DistanceY", 1, 2, 1, 1, 163.0),
    Sketcher.Constraint("DistanceY", -1, 1, 0, 2, 81.5),
    Sketcher.Constraint("DistanceX", -1, 1, 0, 2, 19.69),
])
pocket3 = body.newObject("PartDesign::Pocket", "Pocket002")
pocket3.Profile = sketch5
pocket3.Type = "ThroughAll"

# Sketch on YZ plane
sketch6 = body.newObject("Sketcher::SketchObject", "Sketch005")
sketch6.AttachmentSupport = (doc.getObject("YZ_Plane"), [""])
sketch6.MapMode = "FlatFace"
sketch6.AttachmentOffset = App.Placement(Vector(0, 0, 4), App.Rotation())
sketch6.addGeometry([
    Part.LineSegment(Vector(30.8, 57, 0), Vector(19.7, 57, 0)),  # 0
    Part.LineSegment(Vector(19.7, 57, 0), Vector(19.7, 43, 0)),  # 1
    Part.LineSegment(Vector(19.7, 43, 0), Vector(30.8, 43, 0)),  # 2
    Part.ArcOfCircle(Part.Circle(Vector(30.8, 48, 0), Vector(0, 0, 1), 5), math.radians(-90), math.radians(0)),  # 3
    Part.LineSegment(Vector(35.8, 48, 0), Vector(35.8, 52, 0)),  # 4
    Part.ArcOfCircle(Part.Circle(Vector(30.8, 52, 0), Vector(0, 0, 1), 5), math.radians(0), math.radians(90)),  # 5
    Part.Circle(Vector(29.8, 50, 0), Vector(0, 0, 1), 2.1),  # 6
    Part.LineSegment(Vector(30.8, -43, 0), Vector(19.7, -43, 0)),  # 7
    Part.LineSegment(Vector(19.7, -43, 0), Vector(19.7, -57, 0)),  # 8
    Part.LineSegment(Vector(19.7, -57, 0), Vector(30.8, -57, 0)),  # 9
    Part.ArcOfCircle(Part.Circle(Vector(30.8, -52, 0), Vector(0, 0, 1), 5), math.radians(-90), math.radians(0)),  # 10
    Part.LineSegment(Vector(35.8, -52, 0), Vector(35.8, -48, 0)),  # 11
    Part.ArcOfCircle(Part.Circle(Vector(30.8, -48, 0), Vector(0, 0, 1), 5), math.radians(0), math.radians(90)),  # 12
    Part.Circle(Vector(29.8, -50, 0), Vector(0, 0, 1), 2.1),  # 13
], False)
sketch6.addConstraint([
    Sketcher.Constraint("Coincident", 0, 2, 1, 1),
    Sketcher.Constraint("Coincident", 1, 2, 2, 1),
    Sketcher.Constraint("Tangent", 2, 2, 3, 1),
    Sketcher.Constraint("Tangent", 3, 2, 4, 1),
    Sketcher.Constraint("Tangent", 4, 2, 5, 1),
    Sketcher.Constraint("Tangent", 5, 2, 0, 1),
    Sketcher.Constraint("Coincident", 7, 2, 8, 1),
    Sketcher.Constraint("Coincident", 8, 2, 9, 1),
    Sketcher.Constraint("Tangent", 9, 2, 10, 1),
    Sketcher.Constraint("Tangent", 10, 2, 11, 1),
    Sketcher.Constraint("Tangent", 11, 2, 12, 1),
    Sketcher.Constraint("Tangent", 12, 2, 7, 1),
    Sketcher.Constraint("Horizontal", 0),
    Sketcher.Constraint("Vertical", 1),
    Sketcher.Constraint("Horizontal", 2),
    Sketcher.Constraint("Vertical", 4),
    Sketcher.Constraint("Horizontal", 7),
    Sketcher.Constraint("Vertical", 8),
    Sketcher.Constraint("Horizontal", 9),
    Sketcher.Constraint("Vertical", 11),
    Sketcher.Constraint("Equal", 3, 5),
    Sketcher.Constraint("Equal", 5, 10),
    Sketcher.Constraint("Equal", 10, 12),
    Sketcher.Constraint("Equal", 6, 13),
    Sketcher.Constraint("Symmetric", 5, 3, 10, 3, -1),
    Sketcher.Constraint("Symmetric", 6, 3, 13, 3, -1),
    Sketcher.Constraint("Symmetric", 1, 2, 7, 2, -1),
    Sketcher.Constraint("Radius", 3, 5.0),
    Sketcher.Constraint("Diameter", 6, 4.2),
    Sketcher.Constraint("DistanceY", 1, 2, 1, 1, 14.0),
    Sketcher.Constraint("DistanceY", -1, 1, 3, 3, 48.0),
    Sketcher.Constraint("DistanceY", -1, 1, 6, 3, 50.0),
    Sketcher.Constraint("DistanceX", 6, 3, 3, 3, 1.0),
    Sketcher.Constraint("DistanceX", 0, 2, 0, 1, 11.13),
    Sketcher.Constraint("DistanceX", -1, 1, 3, 3, 30.82),
])
pad3 = body.newObject("PartDesign::Pad", "Pad002")
pad3.Profile = sketch6
pad3.Length = 4
pad3.Reversed = True
doc.recompute()

fillet = body.newObject("PartDesign::Fillet", "Fillet")
fillet.Base = (pad3, edges_at(pad3, [
    (2, 19.69, 43),
    (2, 19.69, 57),
    (2, 19.69, -57),
    (2, 19.69, -43),
]))
fillet.Radius = 5
doc.recompute()

fillet2 = body.newObject("PartDesign::Fillet", "Fillet001")
fillet2.Base = (fillet, edges_at(fillet, [
    (2, 10, -17.5),
    (2, -10, -17.5),
    (2, -10, 17.5),
    (2, 10, 17.5),
]))
fillet2.Radius = 5

doc.recompute()
